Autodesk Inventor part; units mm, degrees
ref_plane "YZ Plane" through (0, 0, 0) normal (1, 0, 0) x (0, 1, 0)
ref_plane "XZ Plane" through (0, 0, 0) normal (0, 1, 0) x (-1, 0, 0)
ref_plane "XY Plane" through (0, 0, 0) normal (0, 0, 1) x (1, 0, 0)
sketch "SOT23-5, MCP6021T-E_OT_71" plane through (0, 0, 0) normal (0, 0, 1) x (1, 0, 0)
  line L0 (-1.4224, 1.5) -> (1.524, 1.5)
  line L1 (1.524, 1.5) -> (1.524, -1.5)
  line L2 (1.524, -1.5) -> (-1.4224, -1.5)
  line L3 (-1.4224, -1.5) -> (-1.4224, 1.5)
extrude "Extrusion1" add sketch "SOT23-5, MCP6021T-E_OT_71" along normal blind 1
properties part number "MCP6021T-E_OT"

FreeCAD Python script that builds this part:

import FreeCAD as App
import Part
import Sketcher
from FreeCAD import Vector
Q = App.Units.Quantity

doc = App.newDocument("Part")
body = doc.addObject("PartDesign::Body", "Body")

sketch1 = doc.addObject("Sketcher::SketchObject", "Sketch")
body.addObject(sketch1)
sketch1.AttachmentSupport = (doc.XY_Plane, [""])
sketch1.MapMode = "FlatFace"
sketch1.addGeometry([
    Part.LineSegment(Vector(1.5, 1.5, 0), Vector(-1.4, 1.5, 0)),
    Part.LineSegment(Vector(-1.4, 1.5, 0), Vector(-1.4, -1.5, 0)),
    Part.LineSegment(Vector(-1.4, -1.5, 0), Vector(1.5, -1.5, 0)),
    Part.LineSegment(Vector(1.5, -1.5, 0), Vector(1.5, 1.5, 0)),
], False)
sketch1.addConstraint([
    Sketcher.Constraint("Coincident", 0, 2, 1, 1),
    Sketcher.Constraint("Coincident", 1, 2, 2, 1),
    Sketcher.Constraint("Coincident", 2, 2, 3, 1),
    Sketcher.Constraint("Coincident", 3, 2, 0, 1),
    Sketcher.Constraint("Horizontal", 0),
    Sketcher.Constraint("Vertical", 1),
    Sketcher.Constraint("Horizontal", 2),
    Sketcher.Constraint("Vertical", 3),
    Sketcher.Constraint("DistanceY", 1, 2, 1, 1, Q("3 mm")),
    Sketcher.Constraint("DistanceY", -1, 1, 0, 2, Q("1.5 mm")),
    Sketcher.Constraint("DistanceX", 0, 2, 0, 1, Q("2.9464 mm")),
    Sketcher.Constraint("DistanceX", -1, 1, 2, 2, Q("1.524 mm")),
])
pad1 = doc.addObject("PartDesign::Pad", "Pad")
body.addObject(pad1)
pad1.Profile = sketch1
pad1.Length = 1

doc.recompute()
